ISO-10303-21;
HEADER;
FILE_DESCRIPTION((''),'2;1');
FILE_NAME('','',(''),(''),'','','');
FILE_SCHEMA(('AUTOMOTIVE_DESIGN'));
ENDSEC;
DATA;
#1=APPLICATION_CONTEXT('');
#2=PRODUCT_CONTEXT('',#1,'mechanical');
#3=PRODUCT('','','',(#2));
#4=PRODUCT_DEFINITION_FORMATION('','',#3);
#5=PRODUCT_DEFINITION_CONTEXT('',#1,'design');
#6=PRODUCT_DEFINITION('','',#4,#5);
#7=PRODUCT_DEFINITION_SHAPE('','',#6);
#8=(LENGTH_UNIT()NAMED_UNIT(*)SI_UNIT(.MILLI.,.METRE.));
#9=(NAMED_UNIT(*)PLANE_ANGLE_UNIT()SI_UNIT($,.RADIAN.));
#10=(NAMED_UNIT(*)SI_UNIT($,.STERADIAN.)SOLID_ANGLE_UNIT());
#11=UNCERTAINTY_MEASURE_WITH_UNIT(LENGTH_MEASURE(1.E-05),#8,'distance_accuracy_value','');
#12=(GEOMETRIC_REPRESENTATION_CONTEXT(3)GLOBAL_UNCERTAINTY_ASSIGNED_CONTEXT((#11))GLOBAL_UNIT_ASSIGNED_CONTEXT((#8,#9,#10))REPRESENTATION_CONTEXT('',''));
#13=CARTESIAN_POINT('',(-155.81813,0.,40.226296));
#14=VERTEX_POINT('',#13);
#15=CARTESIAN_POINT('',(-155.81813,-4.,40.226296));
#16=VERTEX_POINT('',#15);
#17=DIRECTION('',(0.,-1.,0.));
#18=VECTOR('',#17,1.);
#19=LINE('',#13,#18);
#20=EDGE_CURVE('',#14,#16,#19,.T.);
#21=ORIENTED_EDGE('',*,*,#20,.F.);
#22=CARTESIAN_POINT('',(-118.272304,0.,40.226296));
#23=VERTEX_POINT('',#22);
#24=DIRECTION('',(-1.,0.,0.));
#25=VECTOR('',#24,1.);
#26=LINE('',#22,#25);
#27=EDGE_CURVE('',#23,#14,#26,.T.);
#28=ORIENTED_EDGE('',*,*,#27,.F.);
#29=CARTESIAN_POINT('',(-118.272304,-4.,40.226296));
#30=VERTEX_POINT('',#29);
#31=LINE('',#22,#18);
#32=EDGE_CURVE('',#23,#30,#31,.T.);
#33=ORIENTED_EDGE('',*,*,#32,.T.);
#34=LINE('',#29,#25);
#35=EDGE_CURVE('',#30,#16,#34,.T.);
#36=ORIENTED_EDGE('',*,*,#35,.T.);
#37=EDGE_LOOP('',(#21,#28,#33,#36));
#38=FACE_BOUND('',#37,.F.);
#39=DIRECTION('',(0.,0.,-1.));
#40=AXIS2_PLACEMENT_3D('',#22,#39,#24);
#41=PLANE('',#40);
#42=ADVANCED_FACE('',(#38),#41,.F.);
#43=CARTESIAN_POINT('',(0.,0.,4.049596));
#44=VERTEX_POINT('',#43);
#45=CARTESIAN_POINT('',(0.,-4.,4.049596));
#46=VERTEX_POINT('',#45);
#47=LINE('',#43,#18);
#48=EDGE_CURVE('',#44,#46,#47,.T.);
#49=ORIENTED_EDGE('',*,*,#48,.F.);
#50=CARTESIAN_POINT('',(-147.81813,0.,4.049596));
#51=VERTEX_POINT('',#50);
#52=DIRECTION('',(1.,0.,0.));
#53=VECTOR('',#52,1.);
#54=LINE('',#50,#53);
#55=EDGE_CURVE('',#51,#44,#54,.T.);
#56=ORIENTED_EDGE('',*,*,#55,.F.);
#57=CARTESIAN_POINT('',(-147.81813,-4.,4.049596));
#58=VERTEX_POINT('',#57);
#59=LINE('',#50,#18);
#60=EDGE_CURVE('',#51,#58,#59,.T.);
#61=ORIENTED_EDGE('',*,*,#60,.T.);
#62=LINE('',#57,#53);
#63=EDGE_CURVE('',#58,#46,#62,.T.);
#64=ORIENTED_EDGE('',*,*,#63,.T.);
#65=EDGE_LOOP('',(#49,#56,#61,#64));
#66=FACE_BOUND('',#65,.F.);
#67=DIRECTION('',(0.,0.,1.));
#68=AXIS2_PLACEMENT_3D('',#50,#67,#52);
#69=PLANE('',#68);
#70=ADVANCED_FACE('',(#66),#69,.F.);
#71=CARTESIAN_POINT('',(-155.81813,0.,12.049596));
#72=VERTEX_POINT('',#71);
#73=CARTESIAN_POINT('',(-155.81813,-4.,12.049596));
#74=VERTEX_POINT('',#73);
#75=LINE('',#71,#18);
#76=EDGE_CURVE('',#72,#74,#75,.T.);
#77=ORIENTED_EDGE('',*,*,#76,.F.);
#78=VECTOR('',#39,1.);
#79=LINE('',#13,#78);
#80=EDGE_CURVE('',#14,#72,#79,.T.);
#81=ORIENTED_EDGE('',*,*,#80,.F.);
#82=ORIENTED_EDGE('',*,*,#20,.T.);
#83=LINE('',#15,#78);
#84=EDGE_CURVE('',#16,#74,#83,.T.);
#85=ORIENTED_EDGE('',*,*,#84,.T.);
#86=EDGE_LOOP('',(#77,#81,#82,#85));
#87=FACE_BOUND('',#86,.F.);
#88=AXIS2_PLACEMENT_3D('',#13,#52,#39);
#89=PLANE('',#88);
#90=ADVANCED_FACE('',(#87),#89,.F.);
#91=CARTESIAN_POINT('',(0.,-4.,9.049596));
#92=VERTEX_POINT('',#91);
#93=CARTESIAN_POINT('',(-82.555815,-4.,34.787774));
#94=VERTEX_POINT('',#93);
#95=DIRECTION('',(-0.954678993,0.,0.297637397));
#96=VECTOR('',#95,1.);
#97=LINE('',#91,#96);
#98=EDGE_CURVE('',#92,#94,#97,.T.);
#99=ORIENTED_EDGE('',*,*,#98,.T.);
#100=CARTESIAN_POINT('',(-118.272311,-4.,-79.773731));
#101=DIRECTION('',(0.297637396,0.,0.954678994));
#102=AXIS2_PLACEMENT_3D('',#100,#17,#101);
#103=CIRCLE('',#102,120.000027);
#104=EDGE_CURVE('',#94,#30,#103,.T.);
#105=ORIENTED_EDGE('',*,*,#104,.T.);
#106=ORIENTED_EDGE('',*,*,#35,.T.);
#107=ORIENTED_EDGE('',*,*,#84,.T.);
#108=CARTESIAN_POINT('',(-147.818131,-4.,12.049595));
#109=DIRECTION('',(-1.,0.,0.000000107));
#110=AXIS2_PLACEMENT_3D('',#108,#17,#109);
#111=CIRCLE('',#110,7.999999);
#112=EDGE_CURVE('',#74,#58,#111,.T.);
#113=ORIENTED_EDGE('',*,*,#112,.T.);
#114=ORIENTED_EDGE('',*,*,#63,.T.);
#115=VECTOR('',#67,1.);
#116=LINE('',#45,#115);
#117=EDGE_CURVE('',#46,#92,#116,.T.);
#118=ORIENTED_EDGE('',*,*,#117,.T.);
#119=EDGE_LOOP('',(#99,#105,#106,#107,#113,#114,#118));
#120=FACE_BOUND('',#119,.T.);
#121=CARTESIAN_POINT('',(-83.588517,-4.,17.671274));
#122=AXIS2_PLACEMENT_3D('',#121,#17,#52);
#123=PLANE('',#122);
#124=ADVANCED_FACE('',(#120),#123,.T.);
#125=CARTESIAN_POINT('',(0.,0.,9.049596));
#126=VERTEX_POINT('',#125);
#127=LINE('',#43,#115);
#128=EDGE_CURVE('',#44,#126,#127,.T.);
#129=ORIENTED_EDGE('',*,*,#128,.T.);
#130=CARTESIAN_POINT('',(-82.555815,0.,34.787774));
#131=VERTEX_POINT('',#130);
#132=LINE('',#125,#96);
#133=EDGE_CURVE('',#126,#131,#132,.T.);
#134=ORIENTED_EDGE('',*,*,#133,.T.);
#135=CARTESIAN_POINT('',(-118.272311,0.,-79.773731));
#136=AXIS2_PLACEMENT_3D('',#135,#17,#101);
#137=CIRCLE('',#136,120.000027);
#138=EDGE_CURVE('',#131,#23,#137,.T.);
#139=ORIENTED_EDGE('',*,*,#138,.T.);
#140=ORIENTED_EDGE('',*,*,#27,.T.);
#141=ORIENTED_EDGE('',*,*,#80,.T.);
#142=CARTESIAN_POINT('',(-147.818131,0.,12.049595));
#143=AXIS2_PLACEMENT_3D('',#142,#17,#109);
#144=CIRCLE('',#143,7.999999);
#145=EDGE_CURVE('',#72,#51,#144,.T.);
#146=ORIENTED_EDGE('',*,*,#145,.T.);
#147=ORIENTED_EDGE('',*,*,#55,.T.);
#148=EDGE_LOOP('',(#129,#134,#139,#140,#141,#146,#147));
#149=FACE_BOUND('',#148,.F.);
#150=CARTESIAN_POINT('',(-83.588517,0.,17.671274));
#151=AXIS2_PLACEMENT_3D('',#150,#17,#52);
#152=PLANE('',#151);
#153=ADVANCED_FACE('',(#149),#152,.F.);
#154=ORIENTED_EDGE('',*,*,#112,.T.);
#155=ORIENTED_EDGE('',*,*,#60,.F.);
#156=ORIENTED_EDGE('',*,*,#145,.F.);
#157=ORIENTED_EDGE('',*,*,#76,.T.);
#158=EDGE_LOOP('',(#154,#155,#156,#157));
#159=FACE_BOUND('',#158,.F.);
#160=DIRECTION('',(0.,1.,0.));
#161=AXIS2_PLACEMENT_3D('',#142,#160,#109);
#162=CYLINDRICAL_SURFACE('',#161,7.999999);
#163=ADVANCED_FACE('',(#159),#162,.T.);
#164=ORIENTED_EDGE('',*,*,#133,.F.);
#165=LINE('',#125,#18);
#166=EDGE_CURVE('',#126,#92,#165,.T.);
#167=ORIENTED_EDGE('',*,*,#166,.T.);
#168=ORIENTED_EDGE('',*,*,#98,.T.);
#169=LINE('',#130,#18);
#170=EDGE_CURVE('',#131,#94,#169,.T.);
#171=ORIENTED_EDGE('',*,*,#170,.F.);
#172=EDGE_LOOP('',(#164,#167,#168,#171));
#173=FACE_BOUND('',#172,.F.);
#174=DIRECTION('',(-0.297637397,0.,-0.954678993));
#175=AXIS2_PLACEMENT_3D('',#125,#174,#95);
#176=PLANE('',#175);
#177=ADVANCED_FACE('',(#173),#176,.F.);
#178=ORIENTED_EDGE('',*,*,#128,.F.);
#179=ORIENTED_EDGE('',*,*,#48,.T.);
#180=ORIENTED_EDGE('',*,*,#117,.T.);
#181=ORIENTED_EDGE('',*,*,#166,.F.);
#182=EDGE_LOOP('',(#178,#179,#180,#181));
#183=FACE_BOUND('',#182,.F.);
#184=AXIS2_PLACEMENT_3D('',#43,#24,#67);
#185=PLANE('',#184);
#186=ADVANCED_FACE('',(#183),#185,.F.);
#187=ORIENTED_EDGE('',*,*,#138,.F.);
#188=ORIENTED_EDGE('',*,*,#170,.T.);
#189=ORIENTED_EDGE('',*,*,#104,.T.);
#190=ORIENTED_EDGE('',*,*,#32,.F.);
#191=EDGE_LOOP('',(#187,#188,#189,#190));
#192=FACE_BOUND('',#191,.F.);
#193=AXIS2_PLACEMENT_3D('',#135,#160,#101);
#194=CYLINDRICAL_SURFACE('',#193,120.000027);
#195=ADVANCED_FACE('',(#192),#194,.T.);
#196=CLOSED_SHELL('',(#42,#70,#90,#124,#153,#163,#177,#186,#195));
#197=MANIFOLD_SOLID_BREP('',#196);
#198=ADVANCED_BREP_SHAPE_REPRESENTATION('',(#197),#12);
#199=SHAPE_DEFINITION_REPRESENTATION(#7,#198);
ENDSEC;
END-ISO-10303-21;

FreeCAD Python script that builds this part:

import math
import FreeCAD as App
import Part
import Sketcher
from FreeCAD import Vector
Q = App.Units.Quantity

doc = App.newDocument("Part")
params = doc.addObject("Spreadsheet::Sheet", "Params")
for row, (alias, value) in enumerate([
    ("sketch1_radius", "7.999999 mm"),
    ("sketch1_height", "5 mm"),
    ("pad1_length", "4 mm"),
], start=1):
    params.set(f"A{row}", alias)
    params.set(f"B{row}", "=" + value)
    params.setAlias(f"B{row}", alias)

body = doc.addObject("PartDesign::Body", "Body")

# Sketch on XZ plane
sketch1 = body.newObject("Sketcher::SketchObject", "Sketch")
sketch1.AttachmentSupport = (doc.getObject("XZ_Plane"), [""])
sketch1.MapMode = "FlatFace"
sketch1.addGeometry(Part.LineSegment(Vector(-118.3, 40.2, 0), Vector(-155.8, 40.2, 0)), False)
sketch1.addGeometry(Part.LineSegment(Vector(-155.8, 40.2, 0), Vector(-155.8, 12, 0)), False)
sketch1.addGeometry(Part.ArcOfCircle(Part.Circle(Vector(-147.8, 12, 0), Vector(0, 0, 1), 8), math.radians(180), math.radians(270)), False)
sketch1.addGeometry(Part.LineSegment(Vector(-147.8, 4, 0), Vector(0, 4, 0)), False)
sketch1.addGeometry(Part.LineSegment(Vector(0, 4, 0), Vector(0, 9, 0)), False)
sketch1.addGeometry(Part.LineSegment(Vector(0, 9, 0), Vector(-82.6, 34.8, 0)), False)
sketch1.addGeometry(Part.ArcOfCircle(Part.Circle(Vector(-118.3, -79.8, 0), Vector(0, 0, 1), 120), math.radians(72.68), math.radians(90)), False)
sketch1.addConstraint(Sketcher.Constraint("Coincident", 0, 2, 1, 1))
sketch1.addConstraint(Sketcher.Constraint("Tangent", 1, 2, 2, 1))
sketch1.addConstraint(Sketcher.Constraint("Tangent", 2, 2, 3, 1))
sketch1.addConstraint(Sketcher.Constraint("Coincident", 3, 2, 4, 1))
sketch1.addConstraint(Sketcher.Constraint("Coincident", 4, 2, 5, 1))
sketch1.addConstraint(Sketcher.Constraint("Tangent", 5, 2, 6, 1))
sketch1.addConstraint(Sketcher.Constraint("Tangent", 6, 2, 0, 1))
sketch1.addConstraint(Sketcher.Constraint("Horizontal", 0))
sketch1.addConstraint(Sketcher.Constraint("Vertical", 1))
sketch1.addConstraint(Sketcher.Constraint("Horizontal", 3))
sketch1.addConstraint(Sketcher.Constraint("Vertical", 4))
sketch1.addConstraint(Sketcher.Constraint("PointOnObject", 3, 2, -2))
sketch1.addConstraint(Sketcher.Constraint("Radius", 2, Q("7.999999 mm")))
sketch1.addConstraint(Sketcher.Constraint("DistanceY", 4, 1, 4, 2, Q("5 mm")))
sketch1.addConstraint(Sketcher.Constraint("DistanceY", 1, 2, 1, 1, Q("28.1767 mm")))
sketch1.addConstraint(Sketcher.Constraint("Radius", 6, Q("120.000027 mm")))
sketch1.addConstraint(Sketcher.Constraint("DistanceX", 3, 1, 3, 2, Q("147.81813 mm")))
sketch1.addConstraint(Sketcher.Constraint("DistanceX", 0, 2, 0, 1, Q("37.545826 mm")))
sketch1.addConstraint(Sketcher.Constraint("DistanceY", 6, 3, -1, 1, Q("79.773731 mm")))
sketch1.setExpression("Constraints[12]", "Params.sketch1_radius")
sketch1.setExpression("Constraints[13]", "Params.sketch1_height")
pad1 = body.newObject("PartDesign::Pad", "Pad")
pad1.Profile = sketch1
pad1.setExpression("Length", "Params.pad1_length")

doc.recompute()
